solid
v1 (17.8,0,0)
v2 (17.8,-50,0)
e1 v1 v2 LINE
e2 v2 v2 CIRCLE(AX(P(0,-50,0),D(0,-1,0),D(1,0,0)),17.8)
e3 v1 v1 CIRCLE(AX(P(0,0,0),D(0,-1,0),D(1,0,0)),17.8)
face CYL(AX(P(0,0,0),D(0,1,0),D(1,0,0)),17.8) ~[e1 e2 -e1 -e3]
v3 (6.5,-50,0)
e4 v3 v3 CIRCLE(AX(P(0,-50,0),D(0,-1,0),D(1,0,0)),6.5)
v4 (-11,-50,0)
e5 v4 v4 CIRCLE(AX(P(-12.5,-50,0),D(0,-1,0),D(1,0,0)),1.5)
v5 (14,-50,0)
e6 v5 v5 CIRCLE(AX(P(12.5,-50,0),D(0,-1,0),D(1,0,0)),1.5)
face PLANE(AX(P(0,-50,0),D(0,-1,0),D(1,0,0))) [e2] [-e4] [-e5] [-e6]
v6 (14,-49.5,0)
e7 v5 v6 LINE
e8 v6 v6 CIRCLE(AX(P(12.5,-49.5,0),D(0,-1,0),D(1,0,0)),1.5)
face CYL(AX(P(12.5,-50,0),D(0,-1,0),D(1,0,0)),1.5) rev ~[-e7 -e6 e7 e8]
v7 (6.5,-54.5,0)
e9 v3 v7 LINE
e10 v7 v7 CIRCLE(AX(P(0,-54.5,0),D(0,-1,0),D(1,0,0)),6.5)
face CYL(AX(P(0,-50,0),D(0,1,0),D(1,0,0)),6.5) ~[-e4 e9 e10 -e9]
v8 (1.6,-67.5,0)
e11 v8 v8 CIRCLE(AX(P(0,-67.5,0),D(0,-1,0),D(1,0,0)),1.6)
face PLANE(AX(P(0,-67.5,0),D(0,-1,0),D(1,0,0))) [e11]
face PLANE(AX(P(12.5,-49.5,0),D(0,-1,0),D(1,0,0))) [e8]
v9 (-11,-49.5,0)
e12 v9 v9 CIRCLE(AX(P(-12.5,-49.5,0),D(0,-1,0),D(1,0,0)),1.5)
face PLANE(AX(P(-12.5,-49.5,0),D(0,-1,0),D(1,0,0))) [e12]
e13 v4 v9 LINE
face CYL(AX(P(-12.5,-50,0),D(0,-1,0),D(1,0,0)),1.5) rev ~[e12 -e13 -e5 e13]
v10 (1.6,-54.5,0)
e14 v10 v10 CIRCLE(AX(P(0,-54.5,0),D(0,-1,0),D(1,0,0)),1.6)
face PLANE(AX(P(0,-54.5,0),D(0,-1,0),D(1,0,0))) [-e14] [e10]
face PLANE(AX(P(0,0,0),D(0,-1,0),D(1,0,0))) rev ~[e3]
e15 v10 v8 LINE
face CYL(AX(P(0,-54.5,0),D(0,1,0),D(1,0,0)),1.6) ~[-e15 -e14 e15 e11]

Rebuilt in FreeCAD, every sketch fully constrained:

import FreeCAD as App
import Part
import Sketcher
from FreeCAD import Vector
Q = App.Units.Quantity

doc = App.newDocument("Part")
body = doc.addObject("PartDesign::Body", "Body")

# Sketch on XZ plane
sketch1 = body.newObject("Sketcher::SketchObject", "Sketch")
sketch1.AttachmentSupport = (doc.getObject("XZ_Plane"), [""])
sketch1.MapMode = "FlatFace"
sketch1.addGeometry(Part.Circle(Vector(0, 0, 0), Vector(0, 0, 1), 17.8), False)
sketch1.addConstraint(Sketcher.Constraint("Coincident", 0, 3, -1, 1))
sketch1.addConstraint(Sketcher.Constraint("Diameter", 0, Q("35.6 mm")))
pad1 = body.newObject("PartDesign::Pad", "Pad")
pad1.Profile = sketch1
pad1.Length = 50

# Sketch on XZ plane
sketch2 = body.newObject("Sketcher::SketchObject", "Sketch001")
sketch2.AttachmentSupport = (doc.getObject("XZ_Plane"), [""])
sketch2.MapMode = "FlatFace"
sketch2.AttachmentOffset = App.Placement(Vector(0, 0, 50), App.Rotation())
sketch2.addGeometry(Part.Circle(Vector(0, 0, 0), Vector(0, 0, 1), 6.5), False)
sketch2.addConstraint(Sketcher.Constraint("Coincident", 0, 3, -1, 1))
sketch2.addConstraint(Sketcher.Constraint("Diameter", 0, Q("13 mm")))
pad2 = body.newObject("PartDesign::Pad", "Pad001")
pad2.Profile = sketch2
pad2.Length = 4.5

# Sketch on XZ plane
sketch3 = body.newObject("Sketcher::SketchObject", "Sketch002")
sketch3.AttachmentSupport = (doc.getObject("XZ_Plane"), [""])
sketch3.MapMode = "FlatFace"
sketch3.AttachmentOffset = App.Placement(Vector(0, 0, 54.5), App.Rotation())
sketch3.addGeometry(Part.Circle(Vector(0, 0, 0), Vector(0, 0, 1), 1.6), False)
sketch3.addConstraint(Sketcher.Constraint("Coincident", 0, 3, -1, 1))
sketch3.addConstraint(Sketcher.Constraint("Diameter", 0, Q("3.2 mm")))
pad3 = body.newObject("PartDesign::Pad", "Pad002")
pad3.Profile = sketch3
pad3.Length = 13

# Sketch on XZ plane
sketch4 = body.newObject("Sketcher::SketchObject", "Sketch003")
sketch4.AttachmentSupport = (doc.getObject("XZ_Plane"), [""])
sketch4.MapMode = "FlatFace"
sketch4.AttachmentOffset = App.Placement(Vector(0, 0, 50), App.Rotation())
sketch4.addGeometry(Part.Circle(Vector(-12.5, 0, 0), Vector(0, 0, 1), 1.5), False)
sketch4.addGeometry(Part.Circle(Vector(12.5, 0, 0), Vector(0, 0, 1), 1.5), False)
sketch4.addConstraint(Sketcher.Constraint("Equal", 0, 1))
sketch4.addConstraint(Sketcher.Constraint("Symmetric", 0, 3, 1, 3, -1, 1))
sketch4.addConstraint(Sketcher.Constraint("PointOnObject", 0, 3, -1))
sketch4.addConstraint(Sketcher.Constraint("Diameter", 0, Q("3 mm")))
sketch4.addConstraint(Sketcher.Constraint("DistanceX", 0, 3, 1, 3, Q("25 mm")))
pocket1 = body.newObject("PartDesign::Pocket", "Pocket")
pocket1.Profile = sketch4
pocket1.Length = 0.5

doc.recompute()
